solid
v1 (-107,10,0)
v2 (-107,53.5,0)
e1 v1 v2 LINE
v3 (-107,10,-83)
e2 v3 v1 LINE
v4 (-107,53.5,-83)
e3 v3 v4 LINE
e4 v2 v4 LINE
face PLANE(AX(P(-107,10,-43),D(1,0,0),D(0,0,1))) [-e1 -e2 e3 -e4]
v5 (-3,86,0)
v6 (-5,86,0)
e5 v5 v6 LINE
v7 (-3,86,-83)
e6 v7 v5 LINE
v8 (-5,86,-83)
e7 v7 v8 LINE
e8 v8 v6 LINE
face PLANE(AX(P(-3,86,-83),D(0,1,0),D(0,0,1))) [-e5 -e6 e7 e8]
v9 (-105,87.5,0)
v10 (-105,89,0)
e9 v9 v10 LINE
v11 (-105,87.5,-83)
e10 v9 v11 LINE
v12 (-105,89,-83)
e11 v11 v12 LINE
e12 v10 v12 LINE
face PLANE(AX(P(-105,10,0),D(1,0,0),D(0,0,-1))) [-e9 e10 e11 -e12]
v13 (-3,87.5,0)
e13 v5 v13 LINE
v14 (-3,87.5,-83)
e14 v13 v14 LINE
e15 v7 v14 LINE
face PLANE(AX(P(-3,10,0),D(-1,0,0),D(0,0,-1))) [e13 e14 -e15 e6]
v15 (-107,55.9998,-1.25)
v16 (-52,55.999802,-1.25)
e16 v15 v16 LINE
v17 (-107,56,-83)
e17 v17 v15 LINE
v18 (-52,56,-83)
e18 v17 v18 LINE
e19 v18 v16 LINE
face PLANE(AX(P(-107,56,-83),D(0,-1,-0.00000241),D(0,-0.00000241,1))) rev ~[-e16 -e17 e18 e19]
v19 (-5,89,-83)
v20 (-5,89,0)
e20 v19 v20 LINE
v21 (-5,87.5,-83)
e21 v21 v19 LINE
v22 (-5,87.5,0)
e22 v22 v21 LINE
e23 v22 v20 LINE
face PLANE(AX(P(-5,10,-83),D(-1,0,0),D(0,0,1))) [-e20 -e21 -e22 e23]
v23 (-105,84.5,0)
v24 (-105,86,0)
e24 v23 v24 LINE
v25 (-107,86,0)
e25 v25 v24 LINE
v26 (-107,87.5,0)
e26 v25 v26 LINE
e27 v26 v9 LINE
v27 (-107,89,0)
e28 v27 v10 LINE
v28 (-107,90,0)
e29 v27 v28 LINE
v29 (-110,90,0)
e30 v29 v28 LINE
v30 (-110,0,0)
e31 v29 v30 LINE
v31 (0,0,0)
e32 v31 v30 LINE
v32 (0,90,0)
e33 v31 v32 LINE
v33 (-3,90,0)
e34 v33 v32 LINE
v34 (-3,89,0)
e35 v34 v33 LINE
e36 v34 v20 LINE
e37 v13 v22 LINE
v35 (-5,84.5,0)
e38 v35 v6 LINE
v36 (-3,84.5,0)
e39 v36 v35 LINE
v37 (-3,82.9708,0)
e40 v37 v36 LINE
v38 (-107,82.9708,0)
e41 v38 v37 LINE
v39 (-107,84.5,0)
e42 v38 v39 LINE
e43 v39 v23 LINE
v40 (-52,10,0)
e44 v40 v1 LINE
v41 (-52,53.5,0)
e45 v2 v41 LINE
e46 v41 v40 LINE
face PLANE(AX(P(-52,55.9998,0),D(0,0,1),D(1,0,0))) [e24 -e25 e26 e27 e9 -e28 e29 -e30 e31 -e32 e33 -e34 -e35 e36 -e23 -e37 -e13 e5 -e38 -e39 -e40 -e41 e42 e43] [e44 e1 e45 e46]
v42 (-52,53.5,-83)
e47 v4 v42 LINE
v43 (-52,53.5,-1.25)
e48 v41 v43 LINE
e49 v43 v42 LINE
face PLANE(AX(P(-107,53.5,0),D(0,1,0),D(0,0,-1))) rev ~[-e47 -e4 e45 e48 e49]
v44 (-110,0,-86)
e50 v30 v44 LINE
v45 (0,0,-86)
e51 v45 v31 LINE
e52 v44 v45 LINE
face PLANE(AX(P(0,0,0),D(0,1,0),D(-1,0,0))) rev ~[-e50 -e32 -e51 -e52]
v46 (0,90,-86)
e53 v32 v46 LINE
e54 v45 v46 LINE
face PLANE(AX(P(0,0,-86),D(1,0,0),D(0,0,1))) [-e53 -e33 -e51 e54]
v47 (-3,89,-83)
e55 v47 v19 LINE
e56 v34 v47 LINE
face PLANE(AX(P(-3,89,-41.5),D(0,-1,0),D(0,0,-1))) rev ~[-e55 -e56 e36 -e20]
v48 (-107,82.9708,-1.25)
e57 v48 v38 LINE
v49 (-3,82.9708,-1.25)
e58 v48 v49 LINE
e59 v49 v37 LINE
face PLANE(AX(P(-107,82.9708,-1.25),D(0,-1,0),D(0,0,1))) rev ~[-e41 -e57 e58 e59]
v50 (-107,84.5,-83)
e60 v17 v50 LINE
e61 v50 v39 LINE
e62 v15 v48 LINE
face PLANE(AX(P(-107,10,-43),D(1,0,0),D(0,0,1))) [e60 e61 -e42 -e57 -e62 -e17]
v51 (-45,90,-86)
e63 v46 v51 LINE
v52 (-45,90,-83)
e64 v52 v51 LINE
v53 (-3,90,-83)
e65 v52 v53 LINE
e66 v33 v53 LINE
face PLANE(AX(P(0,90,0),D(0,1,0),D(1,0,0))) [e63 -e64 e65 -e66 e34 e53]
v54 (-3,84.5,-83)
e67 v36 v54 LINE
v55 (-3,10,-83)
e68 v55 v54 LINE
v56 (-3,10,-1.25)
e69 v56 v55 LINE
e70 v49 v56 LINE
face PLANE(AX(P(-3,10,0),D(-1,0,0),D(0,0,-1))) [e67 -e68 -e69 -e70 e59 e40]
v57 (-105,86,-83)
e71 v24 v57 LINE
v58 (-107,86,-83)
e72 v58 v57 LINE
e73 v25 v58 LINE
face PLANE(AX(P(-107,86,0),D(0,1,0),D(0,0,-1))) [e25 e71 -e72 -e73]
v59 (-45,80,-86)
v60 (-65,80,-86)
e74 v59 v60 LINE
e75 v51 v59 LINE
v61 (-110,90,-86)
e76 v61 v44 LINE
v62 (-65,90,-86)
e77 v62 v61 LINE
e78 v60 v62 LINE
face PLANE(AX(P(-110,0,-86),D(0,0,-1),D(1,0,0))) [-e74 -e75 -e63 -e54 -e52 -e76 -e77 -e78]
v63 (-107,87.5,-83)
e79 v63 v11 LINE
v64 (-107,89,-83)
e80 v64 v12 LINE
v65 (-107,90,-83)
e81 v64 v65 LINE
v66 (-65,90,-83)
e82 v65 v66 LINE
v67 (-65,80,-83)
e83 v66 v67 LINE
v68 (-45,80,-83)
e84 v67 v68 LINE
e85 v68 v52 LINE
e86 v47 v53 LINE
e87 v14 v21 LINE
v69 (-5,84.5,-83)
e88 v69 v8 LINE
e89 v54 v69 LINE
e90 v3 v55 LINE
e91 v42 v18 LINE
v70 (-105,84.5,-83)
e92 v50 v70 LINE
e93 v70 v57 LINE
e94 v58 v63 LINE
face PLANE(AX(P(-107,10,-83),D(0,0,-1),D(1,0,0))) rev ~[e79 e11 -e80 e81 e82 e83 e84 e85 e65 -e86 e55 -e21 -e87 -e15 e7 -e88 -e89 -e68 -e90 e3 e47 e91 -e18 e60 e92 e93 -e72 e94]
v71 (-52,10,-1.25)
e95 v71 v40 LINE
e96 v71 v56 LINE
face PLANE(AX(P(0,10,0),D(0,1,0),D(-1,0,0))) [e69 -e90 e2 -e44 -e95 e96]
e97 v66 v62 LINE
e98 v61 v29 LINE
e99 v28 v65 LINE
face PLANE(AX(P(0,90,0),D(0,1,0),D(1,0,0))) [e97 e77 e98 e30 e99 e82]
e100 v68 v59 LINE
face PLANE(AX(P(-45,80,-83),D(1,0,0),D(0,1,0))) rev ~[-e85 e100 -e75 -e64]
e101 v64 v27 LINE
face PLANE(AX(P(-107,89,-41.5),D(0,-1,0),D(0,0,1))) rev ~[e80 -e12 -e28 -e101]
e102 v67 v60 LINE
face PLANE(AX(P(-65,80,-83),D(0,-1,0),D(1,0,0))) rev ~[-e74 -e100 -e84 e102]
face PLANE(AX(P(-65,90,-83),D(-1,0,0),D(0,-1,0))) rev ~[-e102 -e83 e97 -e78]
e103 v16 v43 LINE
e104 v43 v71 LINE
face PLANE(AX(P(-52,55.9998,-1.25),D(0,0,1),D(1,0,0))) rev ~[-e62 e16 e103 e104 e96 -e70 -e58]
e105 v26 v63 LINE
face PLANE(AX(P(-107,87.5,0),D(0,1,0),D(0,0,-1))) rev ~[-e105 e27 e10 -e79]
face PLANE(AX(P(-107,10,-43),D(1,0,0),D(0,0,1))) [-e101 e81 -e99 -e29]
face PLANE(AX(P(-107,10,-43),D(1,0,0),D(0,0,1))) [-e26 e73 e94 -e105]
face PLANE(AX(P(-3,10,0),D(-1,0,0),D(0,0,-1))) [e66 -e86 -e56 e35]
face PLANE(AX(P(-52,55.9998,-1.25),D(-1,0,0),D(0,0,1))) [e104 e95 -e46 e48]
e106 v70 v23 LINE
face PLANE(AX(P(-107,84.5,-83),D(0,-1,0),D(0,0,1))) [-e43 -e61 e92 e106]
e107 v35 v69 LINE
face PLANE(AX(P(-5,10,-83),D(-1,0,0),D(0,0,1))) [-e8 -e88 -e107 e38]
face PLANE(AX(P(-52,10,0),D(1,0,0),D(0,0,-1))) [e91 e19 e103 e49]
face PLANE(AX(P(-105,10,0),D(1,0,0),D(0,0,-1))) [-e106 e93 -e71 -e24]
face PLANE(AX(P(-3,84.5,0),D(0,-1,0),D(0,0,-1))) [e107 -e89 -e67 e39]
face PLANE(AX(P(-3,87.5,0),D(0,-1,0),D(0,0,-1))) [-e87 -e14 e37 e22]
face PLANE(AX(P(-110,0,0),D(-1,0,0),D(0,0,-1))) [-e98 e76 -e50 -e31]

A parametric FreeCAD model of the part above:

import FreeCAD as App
import Part
import Sketcher

doc = App.newDocument("Part")
body = doc.addObject("PartDesign::Body", "Body")

# Sketch on XZ plane
sketch1 = body.newObject("Sketcher::SketchObject", "Sketch")
sketch1.AttachmentSupport = (doc.getObject("XZ_Plane"), [""])
sketch1.MapMode = "FlatFace"
sketch1.addGeometry([
    Part.LineSegment(App.Vector(-110, 0, 0), App.Vector(0, 0, 0)),
    Part.LineSegment(App.Vector(0, 0, 0), App.Vector(0, -86, 0)),
    Part.LineSegment(App.Vector(0, -86, 0), App.Vector(-110, -86, 0)),
    Part.LineSegment(App.Vector(-110, -86, 0), App.Vector(-110, 0, 0)),
], False)
sketch1.addConstraint([
    Sketcher.Constraint("Coincident", 0, 2, 1, 1),
    Sketcher.Constraint("Coincident", 1, 2, 2, 1),
    Sketcher.Constraint("Coincident", 2, 2, 3, 1),
    Sketcher.Constraint("Coincident", 3, 2, 0, 1),
    Sketcher.Constraint("Horizontal", 0),
    Sketcher.Constraint("Vertical", 1),
    Sketcher.Constraint("Horizontal", 2),
    Sketcher.Constraint("Vertical", 3),
    Sketcher.Constraint("Coincident", 0, 2, -1, 1),
    Sketcher.Constraint("DistanceX", 0, 1, 0, 2, 110.0),
    Sketcher.Constraint("DistanceY", 1, 2, 1, 1, 86.0),
])
pad1 = body.newObject("PartDesign::Pad", "Pad")
pad1.Profile = sketch1
pad1.Length = 10
pad1.Reversed = True

# Sketch on XZ plane
sketch2 = body.newObject("Sketcher::SketchObject", "Sketch001")
sketch2.AttachmentSupport = (doc.getObject("XZ_Plane"), [""])
sketch2.MapMode = "FlatFace"
sketch2.AttachmentOffset = App.Placement(App.Vector(0, 0, -10), App.Rotation())
sketch2.addGeometry([
    Part.LineSegment(App.Vector(-3, 0, 0), App.Vector(0, 0, 0)),  # 0
    Part.LineSegment(App.Vector(0, 0, 0), App.Vector(0, -86, 0)),  # 1
    Part.LineSegment(App.Vector(0, -86, 0), App.Vector(-110, -86, 0)),  # 2
    Part.LineSegment(App.Vector(-110, -86, 0), App.Vector(-110, 0, 0)),  # 3
    Part.LineSegment(App.Vector(-110, 0, 0), App.Vector(-107, 0, 0)),  # 4
    Part.LineSegment(App.Vector(-107, 0, 0), App.Vector(-107, -83, 0)),  # 5
    Part.LineSegment(App.Vector(-107, -83, 0), App.Vector(-3, -83, 0)),  # 6
    Part.LineSegment(App.Vector(-3, -83, 0), App.Vector(-3, 0, 0)),  # 7
], False)
sketch2.addConstraint([
    Sketcher.Constraint("Coincident", 0, 2, 1, 1),
    Sketcher.Constraint("Coincident", 1, 2, 2, 1),
    Sketcher.Constraint("Coincident", 2, 2, 3, 1),
    Sketcher.Constraint("Coincident", 3, 2, 4, 1),
    Sketcher.Constraint("Coincident", 4, 2, 5, 1),
    Sketcher.Constraint("Coincident", 5, 2, 6, 1),
    Sketcher.Constraint("Coincident", 6, 2, 7, 1),
    Sketcher.Constraint("Coincident", 7, 2, 0, 1),
    Sketcher.Constraint("Horizontal", 0),
    Sketcher.Constraint("Vertical", 1),
    Sketcher.Constraint("Horizontal", 2),
    Sketcher.Constraint("Vertical", 3),
    Sketcher.Constraint("Horizontal", 4),
    Sketcher.Constraint("Vertical", 5),
    Sketcher.Constraint("Horizontal", 6),
    Sketcher.Constraint("Vertical", 7),
    Sketcher.Constraint("Coincident", 0, 2, -1, 1),
    Sketcher.Constraint("PointOnObject", 3, 2, -1),
    Sketcher.Constraint("Equal", 0, 4),
    Sketcher.Constraint("DistanceX", 0, 1, 0, 2, 3.0),
    Sketcher.Constraint("DistanceX", 2, 2, 2, 1, 110.0),
    Sketcher.Constraint("DistanceY", 1, 2, 1, 1, 86.0),
    Sketcher.Constraint("DistanceY", 5, 2, 5, 1, 83.0),
])
pad2 = body.newObject("PartDesign::Pad", "Pad001")
pad2.Profile = sketch2
pad2.Length = 80
pad2.Reversed = True

# Sketch on XY plane
sketch3 = body.newObject("Sketcher::SketchObject", "Sketch002")
sketch3.AttachmentSupport = (doc.getObject("XY_Plane"), [""])
sketch3.MapMode = "FlatFace"
sketch3.AttachmentOffset = App.Placement(App.Vector(0, 0, -83), App.Rotation())
sketch3.addGeometry([
    Part.LineSegment(App.Vector(-45, 90, 0), App.Vector(-65, 90, 0)),
    Part.LineSegment(App.Vector(-65, 90, 0), App.Vector(-65, 80, 0)),
    Part.LineSegment(App.Vector(-65, 80, 0), App.Vector(-45, 80, 0)),
    Part.LineSegment(App.Vector(-45, 80, 0), App.Vector(-45, 90, 0)),
], False)
sketch3.addConstraint([
    Sketcher.Constraint("Coincident", 0, 2, 1, 1),
    Sketcher.Constraint("Coincident", 1, 2, 2, 1),
    Sketcher.Constraint("Coincident", 2, 2, 3, 1),
    Sketcher.Constraint("Coincident", 3, 2, 0, 1),
    Sketcher.Constraint("Horizontal", 0),
    Sketcher.Constraint("Vertical", 1),
    Sketcher.Constraint("Horizontal", 2),
    Sketcher.Constraint("Vertical", 3),
    Sketcher.Constraint("DistanceX", 0, 2, 0, 1, 20.0),
    Sketcher.Constraint("DistanceY", 1, 2, 1, 1, 10.0),
    Sketcher.Constraint("DistanceX", 0, 2, -1, 1, 65.0),
    Sketcher.Constraint("DistanceY", -1, 1, 0, 2, 90.0),
])
pocket1 = body.newObject("PartDesign::Pocket", "Pocket")
pocket1.Profile = sketch3
pocket1.Type = "ThroughAll"

# Sketch on YZ plane
sketch4 = body.newObject("Sketcher::SketchObject", "Sketch003")
sketch4.AttachmentSupport = (doc.getObject("YZ_Plane"), [""])
sketch4.MapMode = "FlatFace"
sketch4.AttachmentOffset = App.Placement(App.Vector(0, 0, -107), App.Rotation())
sketch4.addGeometry([
    Part.LineSegment(App.Vector(89, -83, 0), App.Vector(89, 0, 0)),  # 0
    Part.LineSegment(App.Vector(89, 0, 0), App.Vector(87.5, 0, 0)),  # 1
    Part.LineSegment(App.Vector(87.5, 0, 0), App.Vector(87.5, -83, 0)),  # 2
    Part.LineSegment(App.Vector(87.5, -83, 0), App.Vector(89, -83, 0)),  # 3
    Part.LineSegment(App.Vector(86, -83, 0), App.Vector(86, 0, 0)),  # 4
    Part.LineSegment(App.Vector(86, 0, 0), App.Vector(84.5, 0, 0)),  # 5
    Part.LineSegment(App.Vector(84.5, 0, 0), App.Vector(84.5, -83, 0)),  # 6
    Part.LineSegment(App.Vector(84.5, -83, 0), App.Vector(86, -83, 0)),  # 7
], False)
sketch4.addConstraint([
    Sketcher.Constraint("Coincident", 0, 2, 1, 1),
    Sketcher.Constraint("Coincident", 1, 2, 2, 1),
    Sketcher.Constraint("Coincident", 2, 2, 3, 1),
    Sketcher.Constraint("Coincident", 3, 2, 0, 1),
    Sketcher.Constraint("Coincident", 4, 2, 5, 1),
    Sketcher.Constraint("Coincident", 5, 2, 6, 1),
    Sketcher.Constraint("Coincident", 6, 2, 7, 1),
    Sketcher.Constraint("Coincident", 7, 2, 4, 1),
    Sketcher.Constraint("Vertical", 0),
    Sketcher.Constraint("Horizontal", 1),
    Sketcher.Constraint("Vertical", 2),
    Sketcher.Constraint("Horizontal", 3),
    Sketcher.Constraint("Vertical", 4),
    Sketcher.Constraint("Horizontal", 5),
    Sketcher.Constraint("Vertical", 6),
    Sketcher.Constraint("Horizontal", 7),
    Sketcher.Constraint("PointOnObject", 0, 2, -1),
    Sketcher.Constraint("PointOnObject", 4, 2, -1),
    Sketcher.Constraint("Horizontal", 3, 2, 6, 2),
    Sketcher.Constraint("Equal", 3, 5),
    Sketcher.Constraint("DistanceX", 1, 2, 1, 1, 1.5),
    Sketcher.Constraint("DistanceX", 4, 2, 1, 2, 1.5),
    Sketcher.Constraint("DistanceY", 0, 1, 0, 2, 83.0),
    Sketcher.Constraint("DistanceX", -1, 1, 0, 2, 89.0),
])
pad3 = body.newObject("PartDesign::Pad", "Pad002")
pad3.Profile = sketch4
pad3.Length = 2

# Sketch on YZ plane
sketch5 = body.newObject("Sketcher::SketchObject", "Sketch004")
sketch5.AttachmentSupport = (doc.getObject("YZ_Plane"), [""])
sketch5.MapMode = "FlatFace"
sketch5.AttachmentOffset = App.Placement(App.Vector(0, 0, -3), App.Rotation())
sketch5.addGeometry([
    Part.LineSegment(App.Vector(89, 0, 0), App.Vector(89, -83, 0)),  # 0
    Part.LineSegment(App.Vector(89, -83, 0), App.Vector(87.5, -83, 0)),  # 1
    Part.LineSegment(App.Vector(87.5, -83, 0), App.Vector(87.5, 0, 0)),  # 2
    Part.LineSegment(App.Vector(87.5, 0, 0), App.Vector(89, 0, 0)),  # 3
    Part.LineSegment(App.Vector(86, 0, 0), App.Vector(86, -83, 0)),  # 4
    Part.LineSegment(App.Vector(86, -83, 0), App.Vector(84.5, -83, 0)),  # 5
    Part.LineSegment(App.Vector(84.5, -83, 0), App.Vector(84.5, 0, 0)),  # 6
    Part.LineSegment(App.Vector(84.5, 0, 0), App.Vector(86, 0, 0)),  # 7
], False)
sketch5.addConstraint([
    Sketcher.Constraint("Coincident", 0, 2, 1, 1),
    Sketcher.Constraint("Coincident", 1, 2, 2, 1),
    Sketcher.Constraint("Coincident", 2, 2, 3, 1),
    Sketcher.Constraint("Coincident", 3, 2, 0, 1),
    Sketcher.Constraint("Coincident", 4, 2, 5, 1),
    Sketcher.Constraint("Coincident", 5, 2, 6, 1),
    Sketcher.Constraint("Coincident", 6, 2, 7, 1),
    Sketcher.Constraint("Coincident", 7, 2, 4, 1),
    Sketcher.Constraint("Vertical", 0),
    Sketcher.Constraint("Horizontal", 1),
    Sketcher.Constraint("Vertical", 2),
    Sketcher.Constraint("Horizontal", 3),
    Sketcher.Constraint("Vertical", 4),
    Sketcher.Constraint("Horizontal", 5),
    Sketcher.Constraint("Vertical", 6),
    Sketcher.Constraint("Horizontal", 7),
    Sketcher.Constraint("PointOnObject", 2, 2, -1),
    Sketcher.Constraint("PointOnObject", 6, 2, -1),
    Sketcher.Constraint("Horizontal", 1, 2, 4, 2),
    Sketcher.Constraint("Equal", 3, 5),
    Sketcher.Constraint("DistanceX", 1, 2, 1, 1, 1.5),
    Sketcher.Constraint("DistanceX", 4, 2, 1, 2, 1.5),
    Sketcher.Constraint("DistanceY", 0, 2, 0, 1, 83.0),
    Sketcher.Constraint("DistanceX", -1, 1, 0, 2, 89.0),
])
pad4 = body.newObject("PartDesign::Pad", "Pad003")
pad4.Profile = sketch5
pad4.Length = 2
pad4.Reversed = True

# Sketch on YZ plane
sketch6 = body.newObject("Sketcher::SketchObject", "Sketch005")
sketch6.AttachmentSupport = (doc.getObject("YZ_Plane"), [""])
sketch6.MapMode = "FlatFace"
sketch6.AttachmentOffset = App.Placement(App.Vector(0, 0, -107), App.Rotation())
sketch6.addGeometry([
    Part.LineSegment(App.Vector(53.5, -83, 0), App.Vector(56, -83, 0)),
    Part.LineSegment(App.Vector(56, -83, 0), App.Vector(55.9998, 0, 0)),
    Part.LineSegment(App.Vector(55.9998, 0, 0), App.Vector(53.5, 0, 0)),
    Part.LineSegment(App.Vector(53.5, 0, 0), App.Vector(53.5, -83, 0)),
], False)
sketch6.addConstraint([
    Sketcher.Constraint("Coincident", 0, 2, 1, 1),
    Sketcher.Constraint("Coincident", 1, 2, 2, 1),
    Sketcher.Constraint("Coincident", 2, 2, 3, 1),
    Sketcher.Constraint("Coincident", 3, 2, 0, 1),
    Sketcher.Constraint("Horizontal", 0),
    Sketcher.Constraint("Vertical", 1),
    Sketcher.Constraint("Horizontal", 2),
    Sketcher.Constraint("Vertical", 3),
    Sketcher.Constraint("PointOnObject", 1, 2, -1),
    Sketcher.Constraint("DistanceX", 0, 1, 0, 2, 2.5),
    Sketcher.Constraint("DistanceY", 1, 1, 1, 2, 83.0),
    Sketcher.Constraint("DistanceX", -1, 1, 0, 2, 56.0),
])
pad5 = body.newObject("PartDesign::Pad", "Pad004")
pad5.Profile = sketch6
pad5.Length = 55

# Sketch on YZ plane
sketch7 = body.newObject("Sketcher::SketchObject", "Sketch006")
sketch7.AttachmentSupport = (doc.getObject("YZ_Plane"), [""])
sketch7.MapMode = "FlatFace"
sketch7.AttachmentOffset = App.Placement(App.Vector(0, 0, -107), App.Rotation())
sketch7.addGeometry([
    Part.LineSegment(App.Vector(82.9708, 0, 0), App.Vector(55.9998, 0, 0)),
    Part.LineSegment(App.Vector(55.9998, 0, 0), App.Vector(55.9998, -1.25, 0)),
    Part.LineSegment(App.Vector(55.9998, -1.25, 0), App.Vector(82.9708, -1.25, 0)),
    Part.LineSegment(App.Vector(82.9708, -1.25, 0), App.Vector(82.9708, 0, 0)),
], False)
sketch7.addConstraint([
    Sketcher.Constraint("Coincident", 0, 2, 1, 1),
    Sketcher.Constraint("Coincident", 1, 2, 2, 1),
    Sketcher.Constraint("Coincident", 2, 2, 3, 1),
    Sketcher.Constraint("Coincident", 3, 2, 0, 1),
    Sketcher.Constraint("Horizontal", 0),
    Sketcher.Constraint("Vertical", 1),
    Sketcher.Constraint("Horizontal", 2),
    Sketcher.Constraint("Vertical", 3),
    Sketcher.Constraint("PointOnObject", 0, 2, -1),
    Sketcher.Constraint("DistanceY", 1, 2, 1, 1, 1.25),
    Sketcher.Constraint("DistanceX", 0, 2, 0, 1, 26.971),
    Sketcher.Constraint("DistanceX", -1, 1, 0, 2, 55.9998),
])
pad6 = body.newObject("PartDesign::Pad", "Pad005")
pad6.Profile = sketch7
pad6.Length = 104

# Sketch on XZ plane
sketch8 = body.newObject("Sketcher::SketchObject", "Sketch007")
sketch8.AttachmentSupport = (doc.getObject("XZ_Plane"), [""])
sketch8.MapMode = "FlatFace"
sketch8.AttachmentOffset = App.Placement(App.Vector(0, 0, -55.9998), App.Rotation())
sketch8.addGeometry([
    Part.LineSegment(App.Vector(-52, 0, 0), App.Vector(-52, -1.25, 0)),
    Part.LineSegment(App.Vector(-52, -1.25, 0), App.Vector(-3, -1.25, 0)),
    Part.LineSegment(App.Vector(-3, -1.25, 0), App.Vector(-3, 0, 0)),
    Part.LineSegment(App.Vector(-3, 0, 0), App.Vector(-52, 0, 0)),
], False)
sketch8.addConstraint([
    Sketcher.Constraint("Coincident", 0, 2, 1, 1),
    Sketcher.Constraint("Coincident", 1, 2, 2, 1),
    Sketcher.Constraint("Coincident", 2, 2, 3, 1),
    Sketcher.Constraint("Coincident", 3, 2, 0, 1),
    Sketcher.Constraint("Vertical", 0),
    Sketcher.Constraint("Horizontal", 1),
    Sketcher.Constraint("Vertical", 2),
    Sketcher.Constraint("Horizontal", 3),
    Sketcher.Constraint("PointOnObject", 2, 2, -1),
    Sketcher.Constraint("DistanceX", 1, 1, 1, 2, 49.0),
    Sketcher.Constraint("DistanceX", 0, 2, -1, 1, 52.0),
    Sketcher.Constraint("DistanceY", 0, 2, 0, 1, 1.25),
])
pad7 = body.newObject("PartDesign::Pad", "Pad006")
pad7.Profile = sketch8
pad7.Length = 45.9998

doc.recompute()
